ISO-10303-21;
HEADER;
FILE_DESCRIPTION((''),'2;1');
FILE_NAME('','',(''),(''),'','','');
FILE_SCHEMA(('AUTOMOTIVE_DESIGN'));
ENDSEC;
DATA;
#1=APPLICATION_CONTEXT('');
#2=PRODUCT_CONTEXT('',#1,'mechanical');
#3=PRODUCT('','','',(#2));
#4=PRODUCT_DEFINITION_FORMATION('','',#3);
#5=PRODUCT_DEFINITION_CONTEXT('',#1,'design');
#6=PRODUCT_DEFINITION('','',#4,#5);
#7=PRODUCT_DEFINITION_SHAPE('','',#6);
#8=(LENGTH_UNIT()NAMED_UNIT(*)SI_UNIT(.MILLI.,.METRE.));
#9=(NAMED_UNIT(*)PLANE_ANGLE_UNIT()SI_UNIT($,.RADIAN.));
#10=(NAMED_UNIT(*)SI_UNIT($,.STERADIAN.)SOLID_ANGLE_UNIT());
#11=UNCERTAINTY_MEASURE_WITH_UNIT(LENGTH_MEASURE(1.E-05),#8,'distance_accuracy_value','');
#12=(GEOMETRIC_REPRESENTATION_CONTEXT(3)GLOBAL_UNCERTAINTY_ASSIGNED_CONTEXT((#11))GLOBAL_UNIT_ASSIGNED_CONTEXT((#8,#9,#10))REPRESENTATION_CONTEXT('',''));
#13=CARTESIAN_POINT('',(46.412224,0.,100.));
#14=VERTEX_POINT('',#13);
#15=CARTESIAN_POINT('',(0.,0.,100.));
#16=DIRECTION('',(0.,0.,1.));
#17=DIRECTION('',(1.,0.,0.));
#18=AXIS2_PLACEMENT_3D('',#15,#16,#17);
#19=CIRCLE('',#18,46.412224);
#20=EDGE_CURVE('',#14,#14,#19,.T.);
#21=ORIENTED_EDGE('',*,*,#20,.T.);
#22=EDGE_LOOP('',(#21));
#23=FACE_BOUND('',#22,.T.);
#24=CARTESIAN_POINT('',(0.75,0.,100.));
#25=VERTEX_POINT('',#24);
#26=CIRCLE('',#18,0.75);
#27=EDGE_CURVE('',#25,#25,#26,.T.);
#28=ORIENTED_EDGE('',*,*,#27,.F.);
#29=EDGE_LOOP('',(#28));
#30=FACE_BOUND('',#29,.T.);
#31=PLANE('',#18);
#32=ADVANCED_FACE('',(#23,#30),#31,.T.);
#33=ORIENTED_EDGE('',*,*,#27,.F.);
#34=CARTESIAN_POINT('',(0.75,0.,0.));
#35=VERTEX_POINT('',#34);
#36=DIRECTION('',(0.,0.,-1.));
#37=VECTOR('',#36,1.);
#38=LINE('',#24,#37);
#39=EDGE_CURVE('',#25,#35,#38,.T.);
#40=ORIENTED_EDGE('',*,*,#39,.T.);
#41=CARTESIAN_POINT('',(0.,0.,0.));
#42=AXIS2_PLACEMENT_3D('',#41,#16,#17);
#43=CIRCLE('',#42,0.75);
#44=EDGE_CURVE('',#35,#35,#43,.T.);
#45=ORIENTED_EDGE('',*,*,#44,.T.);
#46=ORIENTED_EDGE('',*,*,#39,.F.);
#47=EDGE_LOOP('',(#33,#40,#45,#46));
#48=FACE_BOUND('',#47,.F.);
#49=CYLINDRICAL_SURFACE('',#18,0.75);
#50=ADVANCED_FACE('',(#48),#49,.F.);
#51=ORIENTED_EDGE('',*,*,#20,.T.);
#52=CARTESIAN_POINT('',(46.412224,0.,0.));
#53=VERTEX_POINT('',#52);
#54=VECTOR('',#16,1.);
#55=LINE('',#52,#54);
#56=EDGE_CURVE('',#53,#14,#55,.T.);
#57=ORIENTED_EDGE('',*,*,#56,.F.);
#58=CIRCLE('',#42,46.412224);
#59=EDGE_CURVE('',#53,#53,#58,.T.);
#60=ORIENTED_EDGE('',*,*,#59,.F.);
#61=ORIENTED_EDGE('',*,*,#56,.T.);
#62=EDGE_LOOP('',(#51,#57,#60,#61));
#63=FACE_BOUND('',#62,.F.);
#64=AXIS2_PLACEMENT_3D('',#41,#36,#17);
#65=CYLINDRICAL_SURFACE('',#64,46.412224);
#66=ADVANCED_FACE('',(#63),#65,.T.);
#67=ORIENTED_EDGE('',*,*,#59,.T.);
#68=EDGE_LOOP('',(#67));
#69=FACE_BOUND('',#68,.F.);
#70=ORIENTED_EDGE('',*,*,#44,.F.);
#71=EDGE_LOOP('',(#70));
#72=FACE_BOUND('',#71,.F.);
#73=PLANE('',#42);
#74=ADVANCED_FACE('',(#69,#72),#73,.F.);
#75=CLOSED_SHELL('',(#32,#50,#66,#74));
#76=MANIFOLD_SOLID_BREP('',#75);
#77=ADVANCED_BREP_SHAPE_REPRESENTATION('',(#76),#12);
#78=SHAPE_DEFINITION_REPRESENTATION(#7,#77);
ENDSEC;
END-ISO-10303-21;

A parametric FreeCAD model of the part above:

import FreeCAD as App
import Part
import Sketcher
Q = App.Units.Quantity

doc = App.newDocument("Part")
body = doc.addObject("PartDesign::Body", "Body")

sketch1 = body.newObject("Sketcher::SketchObject", "Sketch")
sketch1.AttachmentSupport = (doc.getObject("XY_Plane"), [""])
sketch1.MapMode = "FlatFace"
sketch1.addGeometry(Part.Circle(App.Vector(0, 0, 0), App.Vector(0, 0, 1), 46), False)
sketch1.addConstraint([
    Sketcher.Constraint("Coincident", 0, 3, -1, 1),
    Sketcher.Constraint("Diameter", 0, Q("92.824448 mm")),
])
pad1 = body.newObject("PartDesign::Pad", "Pad")
pad1.Profile = sketch1
pad1.Length = 100

sketch2 = body.newObject("Sketcher::SketchObject", "Sketch001")
sketch2.AttachmentSupport = (doc.getObject("XY_Plane"), [""])
sketch2.MapMode = "FlatFace"
sketch2.AttachmentOffset = App.Placement(App.Vector(0, 0, 100), App.Rotation())
sketch2.addGeometry(Part.Circle(App.Vector(0, 0, 0), App.Vector(0, 0, 1), 0.8), False)
sketch2.addConstraint([
    Sketcher.Constraint("Coincident", 0, 3, -1, 1),
    Sketcher.Constraint("Diameter", 0, Q("1.5 mm")),
])
pocket1 = body.newObject("PartDesign::Pocket", "Pocket")
pocket1.Profile = sketch2
pocket1.Type = "ThroughAll"

doc.recompute()
